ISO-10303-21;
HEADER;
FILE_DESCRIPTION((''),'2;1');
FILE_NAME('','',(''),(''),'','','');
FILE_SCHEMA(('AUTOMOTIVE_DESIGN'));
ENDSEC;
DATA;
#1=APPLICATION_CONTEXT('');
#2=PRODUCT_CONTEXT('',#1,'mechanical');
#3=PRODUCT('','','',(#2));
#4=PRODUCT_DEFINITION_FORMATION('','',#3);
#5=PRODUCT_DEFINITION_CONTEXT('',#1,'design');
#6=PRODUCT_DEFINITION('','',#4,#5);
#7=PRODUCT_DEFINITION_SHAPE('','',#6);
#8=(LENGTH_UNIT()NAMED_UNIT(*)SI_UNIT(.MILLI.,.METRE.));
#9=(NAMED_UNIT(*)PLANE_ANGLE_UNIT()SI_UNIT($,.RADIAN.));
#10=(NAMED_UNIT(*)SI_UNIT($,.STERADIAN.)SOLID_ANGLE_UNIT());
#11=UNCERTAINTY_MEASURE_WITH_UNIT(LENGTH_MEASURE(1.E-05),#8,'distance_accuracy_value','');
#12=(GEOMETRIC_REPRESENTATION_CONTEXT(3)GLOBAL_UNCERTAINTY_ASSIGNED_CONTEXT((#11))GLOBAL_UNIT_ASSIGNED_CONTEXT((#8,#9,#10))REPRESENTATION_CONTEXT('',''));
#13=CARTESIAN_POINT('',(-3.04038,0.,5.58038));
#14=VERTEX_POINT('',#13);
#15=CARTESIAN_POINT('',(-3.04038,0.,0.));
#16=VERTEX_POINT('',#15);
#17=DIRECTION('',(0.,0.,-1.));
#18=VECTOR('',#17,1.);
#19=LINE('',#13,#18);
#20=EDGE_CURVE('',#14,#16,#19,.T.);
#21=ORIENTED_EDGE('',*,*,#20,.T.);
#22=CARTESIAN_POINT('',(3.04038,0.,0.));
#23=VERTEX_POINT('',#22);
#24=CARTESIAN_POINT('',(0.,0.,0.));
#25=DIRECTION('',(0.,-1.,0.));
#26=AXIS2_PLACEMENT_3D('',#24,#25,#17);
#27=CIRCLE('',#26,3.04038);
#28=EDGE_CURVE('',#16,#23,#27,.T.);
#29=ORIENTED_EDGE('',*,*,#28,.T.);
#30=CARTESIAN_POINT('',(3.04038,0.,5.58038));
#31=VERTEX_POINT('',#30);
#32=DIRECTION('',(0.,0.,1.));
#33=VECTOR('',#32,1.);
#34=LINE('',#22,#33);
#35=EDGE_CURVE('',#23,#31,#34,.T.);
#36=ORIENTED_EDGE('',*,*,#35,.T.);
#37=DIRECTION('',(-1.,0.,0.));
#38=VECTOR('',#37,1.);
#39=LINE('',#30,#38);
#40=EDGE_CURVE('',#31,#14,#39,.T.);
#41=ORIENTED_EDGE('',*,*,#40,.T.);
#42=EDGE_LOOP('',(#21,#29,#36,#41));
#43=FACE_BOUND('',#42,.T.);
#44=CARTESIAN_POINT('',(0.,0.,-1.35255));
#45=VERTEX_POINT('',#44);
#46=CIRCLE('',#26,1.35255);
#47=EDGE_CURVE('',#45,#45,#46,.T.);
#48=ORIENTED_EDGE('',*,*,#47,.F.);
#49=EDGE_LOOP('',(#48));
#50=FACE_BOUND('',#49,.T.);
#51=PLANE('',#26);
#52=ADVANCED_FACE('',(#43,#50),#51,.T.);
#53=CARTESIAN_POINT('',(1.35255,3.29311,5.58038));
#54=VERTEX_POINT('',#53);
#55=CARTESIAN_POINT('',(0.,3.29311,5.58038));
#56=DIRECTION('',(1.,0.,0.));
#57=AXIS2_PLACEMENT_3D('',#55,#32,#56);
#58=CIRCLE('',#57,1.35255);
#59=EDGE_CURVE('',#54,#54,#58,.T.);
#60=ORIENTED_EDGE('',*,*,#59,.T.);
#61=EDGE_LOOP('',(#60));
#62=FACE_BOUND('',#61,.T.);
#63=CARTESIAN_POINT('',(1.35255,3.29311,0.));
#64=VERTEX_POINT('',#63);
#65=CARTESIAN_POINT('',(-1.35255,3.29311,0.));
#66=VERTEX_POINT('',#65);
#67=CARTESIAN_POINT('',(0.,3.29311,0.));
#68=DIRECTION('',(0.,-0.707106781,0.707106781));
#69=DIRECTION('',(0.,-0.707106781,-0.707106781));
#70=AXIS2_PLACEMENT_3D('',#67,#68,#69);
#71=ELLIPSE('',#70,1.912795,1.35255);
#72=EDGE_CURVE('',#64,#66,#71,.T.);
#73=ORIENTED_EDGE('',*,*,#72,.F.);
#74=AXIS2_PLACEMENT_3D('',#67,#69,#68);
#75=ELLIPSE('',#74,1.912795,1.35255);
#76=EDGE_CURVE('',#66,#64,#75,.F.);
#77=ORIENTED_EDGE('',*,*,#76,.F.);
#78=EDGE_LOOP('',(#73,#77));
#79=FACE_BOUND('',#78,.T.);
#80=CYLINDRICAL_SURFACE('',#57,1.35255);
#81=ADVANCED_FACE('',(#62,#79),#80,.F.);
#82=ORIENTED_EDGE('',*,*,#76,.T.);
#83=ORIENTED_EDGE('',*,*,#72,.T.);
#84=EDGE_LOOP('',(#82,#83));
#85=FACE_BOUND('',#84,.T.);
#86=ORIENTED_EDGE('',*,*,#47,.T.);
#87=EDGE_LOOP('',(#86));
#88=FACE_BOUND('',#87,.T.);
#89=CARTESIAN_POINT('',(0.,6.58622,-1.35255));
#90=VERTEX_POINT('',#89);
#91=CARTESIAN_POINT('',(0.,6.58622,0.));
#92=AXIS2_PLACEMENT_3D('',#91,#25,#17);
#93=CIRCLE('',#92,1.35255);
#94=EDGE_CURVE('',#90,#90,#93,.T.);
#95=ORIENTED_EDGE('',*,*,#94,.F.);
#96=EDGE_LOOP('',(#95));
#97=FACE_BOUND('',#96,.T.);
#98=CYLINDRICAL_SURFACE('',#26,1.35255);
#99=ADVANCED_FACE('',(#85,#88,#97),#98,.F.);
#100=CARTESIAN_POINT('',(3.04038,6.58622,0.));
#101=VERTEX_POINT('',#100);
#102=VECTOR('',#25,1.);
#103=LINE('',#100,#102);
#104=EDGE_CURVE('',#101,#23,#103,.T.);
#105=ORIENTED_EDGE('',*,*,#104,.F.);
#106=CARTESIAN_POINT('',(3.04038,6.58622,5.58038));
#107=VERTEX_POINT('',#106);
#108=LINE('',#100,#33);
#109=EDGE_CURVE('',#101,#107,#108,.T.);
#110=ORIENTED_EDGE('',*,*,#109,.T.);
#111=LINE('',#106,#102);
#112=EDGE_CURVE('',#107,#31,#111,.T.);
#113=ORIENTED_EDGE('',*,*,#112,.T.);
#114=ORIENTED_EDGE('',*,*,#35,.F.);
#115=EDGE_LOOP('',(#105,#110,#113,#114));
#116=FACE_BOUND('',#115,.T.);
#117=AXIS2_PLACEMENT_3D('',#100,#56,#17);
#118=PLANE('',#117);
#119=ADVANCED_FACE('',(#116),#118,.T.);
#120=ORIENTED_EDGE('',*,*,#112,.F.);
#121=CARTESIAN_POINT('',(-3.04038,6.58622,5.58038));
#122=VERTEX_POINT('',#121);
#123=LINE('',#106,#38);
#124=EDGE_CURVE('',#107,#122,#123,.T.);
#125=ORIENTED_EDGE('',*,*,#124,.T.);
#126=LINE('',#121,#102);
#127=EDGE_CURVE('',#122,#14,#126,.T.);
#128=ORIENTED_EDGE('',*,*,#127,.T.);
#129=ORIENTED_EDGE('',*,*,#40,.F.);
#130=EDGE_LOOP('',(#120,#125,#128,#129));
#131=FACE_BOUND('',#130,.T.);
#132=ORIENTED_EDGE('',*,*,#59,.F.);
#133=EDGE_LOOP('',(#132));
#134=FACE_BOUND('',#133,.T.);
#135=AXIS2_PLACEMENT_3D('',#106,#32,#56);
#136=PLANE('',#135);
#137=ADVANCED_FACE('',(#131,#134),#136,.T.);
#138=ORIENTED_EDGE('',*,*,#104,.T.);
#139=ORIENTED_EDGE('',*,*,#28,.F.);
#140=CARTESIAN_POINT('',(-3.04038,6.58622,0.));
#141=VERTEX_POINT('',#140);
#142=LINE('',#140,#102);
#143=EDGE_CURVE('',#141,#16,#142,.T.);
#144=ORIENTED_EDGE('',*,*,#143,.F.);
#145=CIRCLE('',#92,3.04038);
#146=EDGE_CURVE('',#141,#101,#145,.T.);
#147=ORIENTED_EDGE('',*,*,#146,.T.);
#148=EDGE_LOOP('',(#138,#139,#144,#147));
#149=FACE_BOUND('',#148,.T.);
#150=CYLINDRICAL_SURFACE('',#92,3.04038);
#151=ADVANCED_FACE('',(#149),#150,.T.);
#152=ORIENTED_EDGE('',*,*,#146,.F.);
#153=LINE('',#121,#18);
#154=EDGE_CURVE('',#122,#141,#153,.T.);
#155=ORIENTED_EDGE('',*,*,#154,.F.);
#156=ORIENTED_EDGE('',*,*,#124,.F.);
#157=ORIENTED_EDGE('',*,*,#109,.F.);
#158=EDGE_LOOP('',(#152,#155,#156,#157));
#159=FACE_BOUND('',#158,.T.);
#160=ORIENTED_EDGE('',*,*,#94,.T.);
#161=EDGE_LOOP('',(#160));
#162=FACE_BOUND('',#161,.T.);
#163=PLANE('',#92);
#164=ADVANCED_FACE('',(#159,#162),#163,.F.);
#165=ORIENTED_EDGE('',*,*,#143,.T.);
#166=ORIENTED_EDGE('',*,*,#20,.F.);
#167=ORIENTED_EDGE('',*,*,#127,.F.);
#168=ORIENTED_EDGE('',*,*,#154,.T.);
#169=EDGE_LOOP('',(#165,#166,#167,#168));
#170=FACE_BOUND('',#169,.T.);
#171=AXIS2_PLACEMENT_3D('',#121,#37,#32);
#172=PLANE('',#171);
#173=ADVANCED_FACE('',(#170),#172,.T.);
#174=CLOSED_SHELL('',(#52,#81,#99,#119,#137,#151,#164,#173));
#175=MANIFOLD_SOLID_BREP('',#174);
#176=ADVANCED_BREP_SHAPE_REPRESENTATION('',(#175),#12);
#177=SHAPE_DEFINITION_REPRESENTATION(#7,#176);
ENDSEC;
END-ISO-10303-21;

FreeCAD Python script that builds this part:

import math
import FreeCAD as App
import Part
import Sketcher
from FreeCAD import Vector

doc = App.newDocument("Part")
body = doc.addObject("PartDesign::Body", "Body")

sketch1 = body.newObject("Sketcher::SketchObject", "Sketch")
sketch1.AttachmentSupport = (doc.getObject("XZ_Plane"), [""])
sketch1.MapMode = "FlatFace"
sketch1.addGeometry([
    Part.LineSegment(Vector(3, 0, 0), Vector(3, 5.6, 0)),
    Part.LineSegment(Vector(3, 5.6, 0), Vector(-3, 5.6, 0)),
    Part.LineSegment(Vector(-3, 5.6, 0), Vector(-3, 0, 0)),
    Part.ArcOfCircle(Part.Circle(Vector(0, 0, 0), Vector(0, 0, 1), 3), math.radians(180), math.radians(360)),
], False)
sketch1.addConstraint([
    Sketcher.Constraint("Coincident", 0, 2, 1, 1),
    Sketcher.Constraint("Coincident", 1, 2, 2, 1),
    Sketcher.Constraint("Tangent", 2, 2, 3, 1),
    Sketcher.Constraint("Tangent", 3, 2, 0, 1),
    Sketcher.Constraint("Vertical", 0),
    Sketcher.Constraint("Horizontal", 1),
    Sketcher.Constraint("Vertical", 2),
    Sketcher.Constraint("Coincident", 3, 3, -1, 1),
    Sketcher.Constraint("Radius", 3, 3.04038),
    Sketcher.Constraint("DistanceY", 0, 1, 0, 2, 5.58038),
])
pad1 = body.newObject("PartDesign::Pad", "Pad")
pad1.Profile = sketch1
pad1.Length = 6.58622
pad1.Reversed = True

sketch2 = body.newObject("Sketcher::SketchObject", "Sketch001")
sketch2.AttachmentSupport = (doc.getObject("XZ_Plane"), [""])
sketch2.MapMode = "FlatFace"
sketch2.addGeometry(Part.Circle(Vector(0, 0, 0), Vector(0, 0, 1), 1.4), False)
sketch2.addConstraint([
    Sketcher.Constraint("Coincident", 0, 3, -1, 1),
    Sketcher.Constraint("Diameter", 0, 2.7051),
])
doc.recompute()
hole = body.newObject("PartDesign::Hole", "Hole")
hole.Profile = sketch2
hole.ThreadType = "None"
hole.Diameter = 2.7051
hole.DepthType = "ThroughAll"

sketch3 = body.newObject("Sketcher::SketchObject", "Sketch002")
sketch3.AttachmentSupport = (doc.getObject("XY_Plane"), [""])
sketch3.MapMode = "FlatFace"
sketch3.AttachmentOffset = App.Placement(Vector(0, 0, 5.58038), App.Rotation())
sketch3.addGeometry(Part.Circle(Vector(0, 3.3, 0), Vector(0, 0, 1), 1.4), False)
sketch3.addConstraint([
    Sketcher.Constraint("PointOnObject", 0, 3, -2),
    Sketcher.Constraint("Diameter", 0, 2.7051),
    Sketcher.Constraint("DistanceY", -1, 1, 0, 3, 3.29311),
])
pocket1 = body.newObject("PartDesign::Pocket", "Pocket")
pocket1.Profile = sketch3
pocket1.Type = "UpToFirst"

doc.recompute()
